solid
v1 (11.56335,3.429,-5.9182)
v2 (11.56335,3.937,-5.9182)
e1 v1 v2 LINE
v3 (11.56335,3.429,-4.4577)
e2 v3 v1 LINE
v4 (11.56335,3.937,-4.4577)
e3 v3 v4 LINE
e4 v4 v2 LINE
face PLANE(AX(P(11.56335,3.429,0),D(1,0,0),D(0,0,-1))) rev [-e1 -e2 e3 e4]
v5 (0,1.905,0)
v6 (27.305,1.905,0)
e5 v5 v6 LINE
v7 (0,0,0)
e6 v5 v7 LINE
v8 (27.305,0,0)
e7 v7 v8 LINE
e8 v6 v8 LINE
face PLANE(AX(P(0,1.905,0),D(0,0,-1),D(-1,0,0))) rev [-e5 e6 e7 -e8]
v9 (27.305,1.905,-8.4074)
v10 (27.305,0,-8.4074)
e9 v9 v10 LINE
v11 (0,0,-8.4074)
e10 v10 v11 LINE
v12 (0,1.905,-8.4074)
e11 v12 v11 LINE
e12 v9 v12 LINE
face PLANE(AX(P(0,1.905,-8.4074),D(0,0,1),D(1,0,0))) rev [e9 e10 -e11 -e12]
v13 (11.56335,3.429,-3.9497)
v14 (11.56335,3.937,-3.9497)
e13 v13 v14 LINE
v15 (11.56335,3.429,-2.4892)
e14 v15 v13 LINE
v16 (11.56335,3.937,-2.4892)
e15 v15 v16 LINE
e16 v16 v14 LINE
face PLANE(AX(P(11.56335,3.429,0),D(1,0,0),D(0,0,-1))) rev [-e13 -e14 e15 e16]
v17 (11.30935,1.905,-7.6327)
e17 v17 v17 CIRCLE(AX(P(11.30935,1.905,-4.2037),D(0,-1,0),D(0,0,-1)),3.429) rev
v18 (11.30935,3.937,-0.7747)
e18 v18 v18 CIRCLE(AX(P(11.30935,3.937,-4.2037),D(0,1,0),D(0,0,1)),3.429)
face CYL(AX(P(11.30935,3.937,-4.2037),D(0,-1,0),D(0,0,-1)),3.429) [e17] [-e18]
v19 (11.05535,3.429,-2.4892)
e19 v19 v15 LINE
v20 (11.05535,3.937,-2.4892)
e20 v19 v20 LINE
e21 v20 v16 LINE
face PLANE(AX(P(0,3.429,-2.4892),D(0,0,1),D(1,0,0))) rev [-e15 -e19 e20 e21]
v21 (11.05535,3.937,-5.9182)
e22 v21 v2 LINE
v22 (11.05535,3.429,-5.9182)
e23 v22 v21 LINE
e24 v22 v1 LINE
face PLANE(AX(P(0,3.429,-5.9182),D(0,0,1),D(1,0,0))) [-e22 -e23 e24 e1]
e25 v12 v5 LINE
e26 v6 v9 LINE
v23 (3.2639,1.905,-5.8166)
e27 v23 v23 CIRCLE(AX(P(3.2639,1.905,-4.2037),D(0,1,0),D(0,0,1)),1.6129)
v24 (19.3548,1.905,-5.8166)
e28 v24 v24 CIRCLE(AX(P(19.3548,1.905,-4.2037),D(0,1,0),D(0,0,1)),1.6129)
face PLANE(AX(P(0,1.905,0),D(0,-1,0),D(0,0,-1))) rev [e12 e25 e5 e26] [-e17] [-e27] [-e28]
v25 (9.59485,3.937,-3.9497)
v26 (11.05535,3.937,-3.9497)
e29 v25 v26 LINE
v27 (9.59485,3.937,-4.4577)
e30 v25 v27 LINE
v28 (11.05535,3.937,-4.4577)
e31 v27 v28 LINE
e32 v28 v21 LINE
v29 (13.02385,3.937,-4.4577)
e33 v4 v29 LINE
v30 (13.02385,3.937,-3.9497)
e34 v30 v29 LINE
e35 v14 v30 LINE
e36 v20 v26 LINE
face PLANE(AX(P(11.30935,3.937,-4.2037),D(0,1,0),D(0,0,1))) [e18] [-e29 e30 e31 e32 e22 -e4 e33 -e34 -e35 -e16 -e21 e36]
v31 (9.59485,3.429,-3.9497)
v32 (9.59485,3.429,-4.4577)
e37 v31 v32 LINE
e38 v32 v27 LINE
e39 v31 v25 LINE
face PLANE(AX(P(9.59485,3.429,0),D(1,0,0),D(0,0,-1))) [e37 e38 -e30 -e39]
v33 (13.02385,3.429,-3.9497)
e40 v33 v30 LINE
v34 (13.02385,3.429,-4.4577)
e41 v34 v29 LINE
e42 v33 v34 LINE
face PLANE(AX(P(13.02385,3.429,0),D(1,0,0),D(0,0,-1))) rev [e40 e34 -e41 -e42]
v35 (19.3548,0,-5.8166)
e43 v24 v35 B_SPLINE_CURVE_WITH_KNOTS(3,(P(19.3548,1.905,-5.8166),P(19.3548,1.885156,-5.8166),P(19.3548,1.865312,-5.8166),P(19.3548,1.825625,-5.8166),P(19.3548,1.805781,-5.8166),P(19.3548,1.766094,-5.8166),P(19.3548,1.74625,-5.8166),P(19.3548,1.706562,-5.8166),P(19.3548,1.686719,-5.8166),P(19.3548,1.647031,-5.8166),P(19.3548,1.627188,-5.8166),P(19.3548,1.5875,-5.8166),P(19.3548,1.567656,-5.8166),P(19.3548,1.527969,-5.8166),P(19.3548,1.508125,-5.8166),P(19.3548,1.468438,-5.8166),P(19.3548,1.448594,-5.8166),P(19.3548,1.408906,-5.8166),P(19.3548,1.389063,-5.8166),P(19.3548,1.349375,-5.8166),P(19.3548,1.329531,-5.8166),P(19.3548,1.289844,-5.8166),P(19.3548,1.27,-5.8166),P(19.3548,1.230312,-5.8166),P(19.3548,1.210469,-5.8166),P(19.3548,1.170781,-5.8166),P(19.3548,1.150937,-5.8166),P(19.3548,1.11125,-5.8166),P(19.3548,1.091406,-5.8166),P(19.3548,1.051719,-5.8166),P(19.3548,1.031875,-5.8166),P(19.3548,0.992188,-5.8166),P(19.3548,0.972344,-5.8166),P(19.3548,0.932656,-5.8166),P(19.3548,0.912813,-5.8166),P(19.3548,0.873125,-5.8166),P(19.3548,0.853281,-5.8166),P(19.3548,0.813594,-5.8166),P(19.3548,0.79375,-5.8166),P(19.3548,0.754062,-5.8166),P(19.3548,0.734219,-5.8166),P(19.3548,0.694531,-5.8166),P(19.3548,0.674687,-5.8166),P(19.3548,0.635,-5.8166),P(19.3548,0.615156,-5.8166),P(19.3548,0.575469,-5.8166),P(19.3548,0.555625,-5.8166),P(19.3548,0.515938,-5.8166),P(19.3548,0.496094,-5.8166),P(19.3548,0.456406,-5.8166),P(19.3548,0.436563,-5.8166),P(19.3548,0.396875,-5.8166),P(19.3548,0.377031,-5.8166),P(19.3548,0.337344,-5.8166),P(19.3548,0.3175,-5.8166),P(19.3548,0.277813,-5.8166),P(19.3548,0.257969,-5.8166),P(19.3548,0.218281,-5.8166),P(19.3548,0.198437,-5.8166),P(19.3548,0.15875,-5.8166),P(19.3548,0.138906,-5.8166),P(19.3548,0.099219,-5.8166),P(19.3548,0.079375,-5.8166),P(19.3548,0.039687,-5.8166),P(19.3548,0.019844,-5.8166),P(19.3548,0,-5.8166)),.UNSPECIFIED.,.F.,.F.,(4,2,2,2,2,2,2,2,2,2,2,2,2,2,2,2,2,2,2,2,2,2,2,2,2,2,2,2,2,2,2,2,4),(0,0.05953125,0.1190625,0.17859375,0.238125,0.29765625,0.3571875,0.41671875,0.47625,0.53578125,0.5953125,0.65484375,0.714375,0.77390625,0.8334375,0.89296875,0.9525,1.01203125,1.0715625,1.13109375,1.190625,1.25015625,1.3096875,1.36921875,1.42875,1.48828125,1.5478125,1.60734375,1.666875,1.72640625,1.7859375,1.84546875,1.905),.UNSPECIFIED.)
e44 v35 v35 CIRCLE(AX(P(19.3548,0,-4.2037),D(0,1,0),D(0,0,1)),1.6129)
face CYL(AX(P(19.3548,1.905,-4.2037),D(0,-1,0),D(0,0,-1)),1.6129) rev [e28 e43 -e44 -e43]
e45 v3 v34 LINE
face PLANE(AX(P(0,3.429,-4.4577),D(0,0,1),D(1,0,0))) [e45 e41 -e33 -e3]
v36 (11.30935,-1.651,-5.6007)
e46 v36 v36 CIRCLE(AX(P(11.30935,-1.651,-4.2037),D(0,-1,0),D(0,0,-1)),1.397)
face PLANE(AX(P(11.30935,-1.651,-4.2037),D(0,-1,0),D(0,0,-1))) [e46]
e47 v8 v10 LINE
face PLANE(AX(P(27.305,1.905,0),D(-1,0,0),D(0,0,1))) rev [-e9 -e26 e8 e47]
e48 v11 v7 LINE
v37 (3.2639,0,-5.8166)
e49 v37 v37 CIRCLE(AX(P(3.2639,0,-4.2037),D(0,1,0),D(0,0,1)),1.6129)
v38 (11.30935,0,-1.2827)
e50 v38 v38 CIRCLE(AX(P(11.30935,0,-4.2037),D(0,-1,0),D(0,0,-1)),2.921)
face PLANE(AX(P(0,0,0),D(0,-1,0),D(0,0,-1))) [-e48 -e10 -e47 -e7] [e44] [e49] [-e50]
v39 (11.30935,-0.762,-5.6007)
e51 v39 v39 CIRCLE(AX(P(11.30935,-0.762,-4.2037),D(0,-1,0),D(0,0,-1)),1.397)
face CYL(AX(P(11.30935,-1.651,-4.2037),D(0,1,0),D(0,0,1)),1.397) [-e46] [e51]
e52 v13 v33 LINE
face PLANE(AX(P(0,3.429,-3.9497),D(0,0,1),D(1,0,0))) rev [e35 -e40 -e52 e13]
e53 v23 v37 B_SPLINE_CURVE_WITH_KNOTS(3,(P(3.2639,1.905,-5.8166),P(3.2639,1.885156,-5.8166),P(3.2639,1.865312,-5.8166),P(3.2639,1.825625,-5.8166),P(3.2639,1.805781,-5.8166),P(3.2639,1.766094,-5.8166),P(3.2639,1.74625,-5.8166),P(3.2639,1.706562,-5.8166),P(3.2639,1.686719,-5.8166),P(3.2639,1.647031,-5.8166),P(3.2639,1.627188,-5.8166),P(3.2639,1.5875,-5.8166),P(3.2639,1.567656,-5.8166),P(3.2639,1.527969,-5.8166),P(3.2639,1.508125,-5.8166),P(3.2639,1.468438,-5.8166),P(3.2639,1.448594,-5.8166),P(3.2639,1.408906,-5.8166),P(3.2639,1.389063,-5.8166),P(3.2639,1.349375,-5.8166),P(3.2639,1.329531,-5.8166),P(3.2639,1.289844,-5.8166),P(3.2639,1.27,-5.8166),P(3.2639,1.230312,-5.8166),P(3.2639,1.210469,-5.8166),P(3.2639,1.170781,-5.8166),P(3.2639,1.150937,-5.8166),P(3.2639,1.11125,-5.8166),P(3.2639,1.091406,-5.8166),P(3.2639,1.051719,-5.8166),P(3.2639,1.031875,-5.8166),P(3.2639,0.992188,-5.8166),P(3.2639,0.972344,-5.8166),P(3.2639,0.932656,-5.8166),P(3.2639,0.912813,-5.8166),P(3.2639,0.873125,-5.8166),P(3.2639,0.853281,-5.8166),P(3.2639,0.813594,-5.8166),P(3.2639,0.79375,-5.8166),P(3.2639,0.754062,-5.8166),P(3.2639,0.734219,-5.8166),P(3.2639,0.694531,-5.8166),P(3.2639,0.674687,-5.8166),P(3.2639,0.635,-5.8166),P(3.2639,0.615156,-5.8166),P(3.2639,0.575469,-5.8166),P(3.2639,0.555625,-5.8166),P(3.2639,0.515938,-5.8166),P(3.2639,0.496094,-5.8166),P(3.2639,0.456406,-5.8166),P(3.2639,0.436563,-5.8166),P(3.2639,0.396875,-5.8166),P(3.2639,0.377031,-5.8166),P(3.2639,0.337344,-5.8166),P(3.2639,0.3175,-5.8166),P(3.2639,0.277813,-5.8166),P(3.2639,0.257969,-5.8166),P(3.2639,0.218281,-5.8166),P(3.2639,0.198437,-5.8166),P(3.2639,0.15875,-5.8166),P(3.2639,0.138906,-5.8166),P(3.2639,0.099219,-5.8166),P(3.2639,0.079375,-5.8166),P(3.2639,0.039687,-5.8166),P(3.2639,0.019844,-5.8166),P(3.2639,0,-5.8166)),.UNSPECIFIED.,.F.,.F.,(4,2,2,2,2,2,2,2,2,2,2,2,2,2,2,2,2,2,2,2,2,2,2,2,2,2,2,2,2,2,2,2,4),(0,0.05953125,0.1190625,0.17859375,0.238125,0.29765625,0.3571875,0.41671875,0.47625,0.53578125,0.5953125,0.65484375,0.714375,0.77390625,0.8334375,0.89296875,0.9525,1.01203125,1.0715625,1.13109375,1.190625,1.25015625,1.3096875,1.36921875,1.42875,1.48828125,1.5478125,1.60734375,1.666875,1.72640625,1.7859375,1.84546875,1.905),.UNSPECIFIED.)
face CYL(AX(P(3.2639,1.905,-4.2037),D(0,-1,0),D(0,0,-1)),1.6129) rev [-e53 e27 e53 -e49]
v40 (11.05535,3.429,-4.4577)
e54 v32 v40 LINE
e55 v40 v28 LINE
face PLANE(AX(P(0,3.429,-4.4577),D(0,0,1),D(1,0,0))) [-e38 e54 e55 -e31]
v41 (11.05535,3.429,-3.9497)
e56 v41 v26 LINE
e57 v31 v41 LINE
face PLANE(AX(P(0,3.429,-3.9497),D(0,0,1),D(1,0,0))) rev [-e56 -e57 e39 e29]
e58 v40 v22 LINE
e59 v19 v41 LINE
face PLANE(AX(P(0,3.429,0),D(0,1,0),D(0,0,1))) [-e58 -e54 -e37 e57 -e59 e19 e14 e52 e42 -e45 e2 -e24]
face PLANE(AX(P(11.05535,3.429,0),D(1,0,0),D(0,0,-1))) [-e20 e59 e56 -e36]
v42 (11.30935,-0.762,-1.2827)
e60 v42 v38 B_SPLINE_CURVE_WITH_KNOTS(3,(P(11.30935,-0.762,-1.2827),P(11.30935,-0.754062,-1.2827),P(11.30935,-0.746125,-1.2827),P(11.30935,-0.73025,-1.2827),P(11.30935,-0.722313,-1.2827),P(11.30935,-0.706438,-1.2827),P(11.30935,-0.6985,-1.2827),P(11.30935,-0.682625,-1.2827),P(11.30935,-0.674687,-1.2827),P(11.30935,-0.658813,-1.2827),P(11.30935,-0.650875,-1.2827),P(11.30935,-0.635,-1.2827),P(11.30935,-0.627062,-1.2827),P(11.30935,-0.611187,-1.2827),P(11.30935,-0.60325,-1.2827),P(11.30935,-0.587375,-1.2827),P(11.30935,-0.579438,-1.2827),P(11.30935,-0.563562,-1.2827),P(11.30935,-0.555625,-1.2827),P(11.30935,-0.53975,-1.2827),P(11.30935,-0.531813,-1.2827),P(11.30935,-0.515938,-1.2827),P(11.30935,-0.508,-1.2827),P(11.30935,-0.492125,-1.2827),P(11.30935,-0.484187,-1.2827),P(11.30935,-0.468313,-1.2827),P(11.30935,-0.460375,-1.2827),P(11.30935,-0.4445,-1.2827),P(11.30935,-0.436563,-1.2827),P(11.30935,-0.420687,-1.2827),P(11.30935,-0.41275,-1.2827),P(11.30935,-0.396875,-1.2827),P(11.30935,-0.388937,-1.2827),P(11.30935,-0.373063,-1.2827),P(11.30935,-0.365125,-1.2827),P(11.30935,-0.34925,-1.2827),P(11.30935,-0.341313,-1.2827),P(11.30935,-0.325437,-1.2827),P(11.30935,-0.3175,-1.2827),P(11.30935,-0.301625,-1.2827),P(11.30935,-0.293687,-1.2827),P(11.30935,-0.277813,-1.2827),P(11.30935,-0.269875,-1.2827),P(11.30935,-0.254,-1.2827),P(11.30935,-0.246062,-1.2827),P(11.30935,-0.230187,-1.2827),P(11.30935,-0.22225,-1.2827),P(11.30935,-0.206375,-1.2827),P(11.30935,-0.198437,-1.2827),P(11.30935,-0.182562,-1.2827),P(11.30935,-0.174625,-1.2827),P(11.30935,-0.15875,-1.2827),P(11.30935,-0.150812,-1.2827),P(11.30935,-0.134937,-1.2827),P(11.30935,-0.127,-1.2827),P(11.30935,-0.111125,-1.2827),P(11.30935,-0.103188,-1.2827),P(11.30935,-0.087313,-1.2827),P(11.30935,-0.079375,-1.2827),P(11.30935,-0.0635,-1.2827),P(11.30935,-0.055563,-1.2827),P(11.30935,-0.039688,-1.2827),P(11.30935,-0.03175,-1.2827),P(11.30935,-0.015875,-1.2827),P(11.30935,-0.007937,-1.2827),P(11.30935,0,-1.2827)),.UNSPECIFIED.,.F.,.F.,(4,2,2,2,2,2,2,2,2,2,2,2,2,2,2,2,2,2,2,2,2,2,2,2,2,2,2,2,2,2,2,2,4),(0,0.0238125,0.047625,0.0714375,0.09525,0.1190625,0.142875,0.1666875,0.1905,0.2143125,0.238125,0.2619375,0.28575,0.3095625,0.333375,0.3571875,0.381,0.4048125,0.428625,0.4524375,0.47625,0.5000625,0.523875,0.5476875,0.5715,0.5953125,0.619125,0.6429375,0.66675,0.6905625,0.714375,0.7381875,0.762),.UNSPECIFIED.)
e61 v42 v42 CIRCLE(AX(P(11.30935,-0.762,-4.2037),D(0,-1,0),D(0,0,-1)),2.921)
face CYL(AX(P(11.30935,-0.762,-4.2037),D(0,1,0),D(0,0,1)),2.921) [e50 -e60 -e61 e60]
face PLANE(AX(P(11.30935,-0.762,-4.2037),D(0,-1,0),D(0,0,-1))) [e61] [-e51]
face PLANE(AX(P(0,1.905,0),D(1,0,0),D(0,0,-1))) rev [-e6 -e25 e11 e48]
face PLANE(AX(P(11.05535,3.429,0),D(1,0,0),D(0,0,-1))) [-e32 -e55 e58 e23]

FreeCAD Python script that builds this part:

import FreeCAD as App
import Part
import Sketcher

V = App.Vector
Q = App.Units.Quantity


def add_polygon(sketch, points):
    """Adds a closed chain of lines whose ends are joined by coincident constraints."""
    first, n = sketch.GeometryCount, len(points)
    for a, b in zip(points, points[1:] + points[:1]):
        sketch.addGeometry(Part.LineSegment(App.Vector(*a, 0), App.Vector(*b, 0)), False)
    for i in range(n):
        sketch.addConstraint(Sketcher.Constraint("Coincident", first + i, 2, first + (i + 1) % n, 1))

doc = App.newDocument("Part")
body = doc.addObject("PartDesign::Body", "Body")

sketch1 = doc.addObject("Sketcher::SketchObject", "Sketch")
body.addObject(sketch1)
sketch1.AttachmentSupport = (doc.XZ_Plane, [""])
sketch1.MapMode = "FlatFace"
add_polygon(sketch1, [(0, -8.4), (0, 0), (27.3, 0), (27.3, -8.4)])
sketch1.addGeometry(Part.Circle(V(3.3, -4.2, 0), V(0, 0, 1), 1.6), False)
sketch1.addGeometry(Part.Circle(V(19.4, -4.2, 0), V(0, 0, 1), 1.6), False)
sketch1.addConstraint(Sketcher.Constraint("Vertical", 0))
sketch1.addConstraint(Sketcher.Constraint("Horizontal", 1))
sketch1.addConstraint(Sketcher.Constraint("Vertical", 2))
sketch1.addConstraint(Sketcher.Constraint("Horizontal", 3))
sketch1.addConstraint(Sketcher.Constraint("Coincident", 0, 2, -1, 1))
sketch1.addConstraint(Sketcher.Constraint("Equal", 4, 5))
sketch1.addConstraint(Sketcher.Constraint("Horizontal", 4, 3, 5, 3))
sketch1.addConstraint(Sketcher.Constraint("Diameter", 4, Q("0.127 in")))
sketch1.addConstraint(Sketcher.Constraint("DistanceX", 1, 1, 1, 2, Q("1.075 in")))
sketch1.addConstraint(Sketcher.Constraint("DistanceY", 0, 1, 0, 2, Q("0.331 in")))
sketch1.addConstraint(Sketcher.Constraint("DistanceX", -1, 1, 5, 3, Q("0.762 in")))
sketch1.addConstraint(Sketcher.Constraint("DistanceX", -1, 1, 4, 3, Q("0.1285 in")))
sketch1.addConstraint(Sketcher.Constraint("DistanceY", 4, 3, -1, 1, Q("0.1655 in")))
pad1 = doc.addObject("PartDesign::Pad", "Pad")
body.addObject(pad1)
pad1.Profile = sketch1
pad1.Length = Q("0.075 in")
pad1.Reversed = True

sketch2 = doc.addObject("Sketcher::SketchObject", "Sketch001")
body.addObject(sketch2)
sketch2.AttachmentSupport = (doc.XZ_Plane, [""])
sketch2.MapMode = "FlatFace"
sketch2.AttachmentOffset = App.Placement(V(0, 0, -0.075 * 25.4), App.Rotation())
sketch2.addGeometry(Part.Circle(V(11.3, -4.2, 0), V(0, 0, 1), 3.4), False)
sketch2.addConstraint(Sketcher.Constraint("Diameter", 0, Q("0.27 in")))
sketch2.addConstraint(Sketcher.Constraint("DistanceY", 0, 3, -1, 1, Q("0.1655 in")))
sketch2.addConstraint(Sketcher.Constraint("DistanceX", -1, 1, 0, 3, 11.30935))
pad2 = doc.addObject("PartDesign::Pad", "Pad001")
body.addObject(pad2)
pad2.Profile = sketch2
pad2.Length = Q("0.08 in")
pad2.Reversed = True

sketch3 = doc.addObject("Sketcher::SketchObject", "Sketch002")
body.addObject(sketch3)
sketch3.AttachmentSupport = (doc.XZ_Plane, [""])
sketch3.MapMode = "FlatFace"
sketch3.addGeometry(Part.Circle(V(11.3, -4.2, 0), V(0, 0, 1), 2.9), False)
sketch3.addConstraint(Sketcher.Constraint("Diameter", 0, Q("0.23 in")))
sketch3.addConstraint(Sketcher.Constraint("DistanceY", 0, 3, -1, 1, Q("0.1655 in")))
sketch3.addConstraint(Sketcher.Constraint("DistanceX", -1, 1, 0, 3, 11.30935))
pad3 = doc.addObject("PartDesign::Pad", "Pad002")
body.addObject(pad3)
pad3.Profile = sketch3
pad3.Length = Q("0.03 in")

sketch4 = doc.addObject("Sketcher::SketchObject", "Sketch003")
body.addObject(sketch4)
sketch4.AttachmentSupport = (doc.XZ_Plane, [""])
sketch4.MapMode = "FlatFace"
sketch4.AttachmentOffset = App.Placement(V(0, 0, 0.03 * 25.4), App.Rotation())
sketch4.addGeometry(Part.Circle(V(11.3, -4.2, 0), V(0, 0, 1), 1.4), False)
sketch4.addConstraint(Sketcher.Constraint("Diameter", 0, Q("0.11 in")))
sketch4.addConstraint(Sketcher.Constraint("DistanceY", 0, 3, -1, 1, Q("0.1655 in")))
sketch4.addConstraint(Sketcher.Constraint("DistanceX", -1, 1, 0, 3, 11.30935))
pad4 = doc.addObject("PartDesign::Pad", "Pad003")
body.addObject(pad4)
pad4.Profile = sketch4
pad4.Length = Q("0.035 in")

sketch5 = doc.addObject("Sketcher::SketchObject", "Sketch004")
body.addObject(sketch5)
sketch5.AttachmentSupport = (doc.XZ_Plane, [""])
sketch5.MapMode = "FlatFace"
sketch5.AttachmentOffset = App.Placement(V(0, 0, -0.155 * 25.4), App.Rotation())
add_polygon(sketch5, [(11.1, -5.9), (11.1, -4.5), (9.6, -4.5), (9.6, -3.9), (11.1, -3.9), (11.1, -2.5), (11.6, -2.5), (11.6, -3.9), (13, -3.9), (13, -4.5), (11.6, -4.5), (11.6, -5.9)])
sketch5.addConstraint(Sketcher.Constraint("Vertical", 0))
sketch5.addConstraint(Sketcher.Constraint("Horizontal", 1))
sketch5.addConstraint(Sketcher.Constraint("Vertical", 2))
sketch5.addConstraint(Sketcher.Constraint("Horizontal", 3))
sketch5.addConstraint(Sketcher.Constraint("Vertical", 4))
sketch5.addConstraint(Sketcher.Constraint("Horizontal", 5))
sketch5.addConstraint(Sketcher.Constraint("Vertical", 6))
sketch5.addConstraint(Sketcher.Constraint("Horizontal", 7))
sketch5.addConstraint(Sketcher.Constraint("Vertical", 8))
sketch5.addConstraint(Sketcher.Constraint("Horizontal", 9))
sketch5.addConstraint(Sketcher.Constraint("Vertical", 10))
sketch5.addConstraint(Sketcher.Constraint("Horizontal", 11))
sketch5.addConstraint(Sketcher.Constraint("Horizontal", 3, 2, 6, 2))
sketch5.addConstraint(Sketcher.Constraint("Horizontal", 1, 2, 8, 2))
sketch5.addConstraint(Sketcher.Constraint("Vertical", 0, 2, 3, 2))
sketch5.addConstraint(Sketcher.Constraint("Vertical", 6, 2, 9, 2))
sketch5.addConstraint(Sketcher.Constraint("Equal", 3, 7))
sketch5.addConstraint(Sketcher.Constraint("Equal", 9, 0))
sketch5.addConstraint(Sketcher.Constraint("Equal", 11, 2))
sketch5.addConstraint(Sketcher.Constraint("Equal", 0, 4))
sketch5.addConstraint(Sketcher.Constraint("DistanceX", 5, 1, 5, 2, Q("0.02 in")))
sketch5.addConstraint(Sketcher.Constraint("DistanceX", 1, 2, 1, 1, Q("0.0575 in")))
sketch5.addConstraint(Sketcher.Constraint("DistanceY", 4, 2, -1, 1, Q("0.098 in")))
sketch5.addConstraint(Sketcher.Constraint("DistanceX", -1, 1, 0, 2, 11.05535))
pocket1 = doc.addObject("PartDesign::Pocket", "Pocket")
body.addObject(pocket1)
pocket1.Profile = sketch5
pocket1.Length = Q("0.02 in")
pocket1.Reversed = True

doc.recompute()
